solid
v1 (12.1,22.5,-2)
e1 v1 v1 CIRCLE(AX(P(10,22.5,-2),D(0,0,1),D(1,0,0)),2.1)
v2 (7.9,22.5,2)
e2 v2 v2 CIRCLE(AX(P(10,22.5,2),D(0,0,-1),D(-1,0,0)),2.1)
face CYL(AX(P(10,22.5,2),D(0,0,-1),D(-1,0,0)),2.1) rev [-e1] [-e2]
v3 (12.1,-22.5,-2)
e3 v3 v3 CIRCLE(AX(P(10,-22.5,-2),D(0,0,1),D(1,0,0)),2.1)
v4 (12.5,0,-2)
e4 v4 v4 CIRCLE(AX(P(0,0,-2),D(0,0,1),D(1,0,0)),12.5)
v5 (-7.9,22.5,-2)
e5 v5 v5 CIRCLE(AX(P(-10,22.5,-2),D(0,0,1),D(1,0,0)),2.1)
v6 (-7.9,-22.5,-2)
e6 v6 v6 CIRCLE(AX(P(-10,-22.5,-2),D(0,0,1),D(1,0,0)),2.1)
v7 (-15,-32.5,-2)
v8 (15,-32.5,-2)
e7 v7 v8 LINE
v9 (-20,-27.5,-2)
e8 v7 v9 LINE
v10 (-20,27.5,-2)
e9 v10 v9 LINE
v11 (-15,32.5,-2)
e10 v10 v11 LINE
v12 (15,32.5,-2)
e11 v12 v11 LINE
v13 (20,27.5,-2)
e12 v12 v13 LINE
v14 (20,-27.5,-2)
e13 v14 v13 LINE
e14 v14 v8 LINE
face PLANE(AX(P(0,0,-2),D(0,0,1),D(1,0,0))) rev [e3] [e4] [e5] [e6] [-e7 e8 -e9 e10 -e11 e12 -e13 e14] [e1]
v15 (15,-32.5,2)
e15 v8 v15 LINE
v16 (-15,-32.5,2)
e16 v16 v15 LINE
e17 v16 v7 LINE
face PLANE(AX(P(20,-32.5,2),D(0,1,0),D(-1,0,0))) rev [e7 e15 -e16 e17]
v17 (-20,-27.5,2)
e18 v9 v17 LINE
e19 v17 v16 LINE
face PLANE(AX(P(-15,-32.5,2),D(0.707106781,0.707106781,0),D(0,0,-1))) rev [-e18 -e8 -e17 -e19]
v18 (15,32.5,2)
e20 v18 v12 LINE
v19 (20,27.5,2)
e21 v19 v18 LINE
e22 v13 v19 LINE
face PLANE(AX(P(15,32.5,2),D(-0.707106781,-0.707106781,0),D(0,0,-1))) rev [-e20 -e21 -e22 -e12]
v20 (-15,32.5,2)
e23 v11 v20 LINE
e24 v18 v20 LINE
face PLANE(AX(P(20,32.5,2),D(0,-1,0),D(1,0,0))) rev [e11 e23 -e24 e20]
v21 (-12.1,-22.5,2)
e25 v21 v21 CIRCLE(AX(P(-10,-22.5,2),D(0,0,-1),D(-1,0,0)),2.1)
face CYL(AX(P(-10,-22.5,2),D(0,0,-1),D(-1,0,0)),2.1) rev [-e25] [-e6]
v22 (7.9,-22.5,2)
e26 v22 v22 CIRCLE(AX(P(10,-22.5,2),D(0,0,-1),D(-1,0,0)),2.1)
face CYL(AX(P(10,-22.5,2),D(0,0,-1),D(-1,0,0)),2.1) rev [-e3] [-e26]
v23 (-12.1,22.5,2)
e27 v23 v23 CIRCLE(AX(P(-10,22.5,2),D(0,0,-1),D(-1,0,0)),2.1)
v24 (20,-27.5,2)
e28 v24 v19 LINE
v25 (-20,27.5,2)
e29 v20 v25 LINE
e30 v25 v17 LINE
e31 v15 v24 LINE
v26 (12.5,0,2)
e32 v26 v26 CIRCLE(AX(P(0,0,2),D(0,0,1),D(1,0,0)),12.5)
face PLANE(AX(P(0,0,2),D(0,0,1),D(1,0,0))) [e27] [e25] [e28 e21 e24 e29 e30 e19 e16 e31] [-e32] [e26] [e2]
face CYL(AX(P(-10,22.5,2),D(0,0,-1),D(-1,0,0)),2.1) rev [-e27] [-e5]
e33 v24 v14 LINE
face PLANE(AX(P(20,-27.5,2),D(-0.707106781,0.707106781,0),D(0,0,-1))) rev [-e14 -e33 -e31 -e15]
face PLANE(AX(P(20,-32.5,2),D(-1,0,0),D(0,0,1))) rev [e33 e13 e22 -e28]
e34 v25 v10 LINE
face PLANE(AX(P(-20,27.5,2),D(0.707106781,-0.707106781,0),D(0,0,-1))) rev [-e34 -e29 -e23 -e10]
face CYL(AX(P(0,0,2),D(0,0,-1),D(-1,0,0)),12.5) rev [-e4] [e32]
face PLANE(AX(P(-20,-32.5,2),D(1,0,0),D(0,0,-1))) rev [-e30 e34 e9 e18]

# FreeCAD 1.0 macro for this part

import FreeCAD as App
import Part
import Sketcher
from FreeCAD import Vector
Q = App.Units.Quantity


def edges_at(feature, points):
    """Names of the edges that pass closest to the given points."""
    edges = feature.Shape.Edges
    near = lambda p: min(range(len(edges)), key=lambda i: edges[i].distToShape(Part.Vertex(*p))[0])
    return sorted({f"Edge{near(p) + 1}" for p in points})

doc = App.newDocument("Part")
body = doc.addObject("PartDesign::Body", "Body")

# Sketch on XY plane
sketch1 = body.newObject("Sketcher::SketchObject", "Sketch")
sketch1.AttachmentSupport = (doc.getObject("XY_Plane"), [""])
sketch1.MapMode = "FlatFace"
sketch1.addGeometry([
    Part.LineSegment(Vector(-20, 32, 0), Vector(-20, -32, 0)),  # 0
    Part.LineSegment(Vector(-20, -32, 0), Vector(20, -32, 0)),  # 1
    Part.LineSegment(Vector(20, -32, 0), Vector(20, 32, 0)),  # 2
    Part.LineSegment(Vector(20, 32, 0), Vector(-20, 32, 0)),  # 3
    Part.Circle(Vector(0, 0, 0), Vector(0, 0, 1), 12),  # 4
], False)
sketch1.addConstraint([
    Sketcher.Constraint("Coincident", 0, 2, 1, 1),
    Sketcher.Constraint("Coincident", 1, 2, 2, 1),
    Sketcher.Constraint("Coincident", 2, 2, 3, 1),
    Sketcher.Constraint("Coincident", 3, 2, 0, 1),
    Sketcher.Constraint("Vertical", 0),
    Sketcher.Constraint("Horizontal", 1),
    Sketcher.Constraint("Vertical", 2),
    Sketcher.Constraint("Horizontal", 3),
    Sketcher.Constraint("Coincident", 4, 3, -1, 1),
    Sketcher.Constraint("Symmetric", 0, 2, 2, 2, -1, 1),
    Sketcher.Constraint("Diameter", 4, Q("25 mm")),
    Sketcher.Constraint("DistanceX", 1, 1, 1, 2, Q("40 mm")),
    Sketcher.Constraint("DistanceY", 0, 2, 0, 1, Q("65 mm")),
])
pad1 = body.newObject("PartDesign::Pad", "Pad")
pad1.Profile = sketch1
pad1.Length = 4
pad1.Midplane = True

# Sketch on XY plane
sketch2 = body.newObject("Sketcher::SketchObject", "Sketch001")
sketch2.AttachmentSupport = (doc.getObject("XY_Plane"), [""])
sketch2.MapMode = "FlatFace"
sketch2.AttachmentOffset = App.Placement(Vector(0, 0, -2), App.Rotation())
sketch2.addGeometry([
    Part.Circle(Vector(10, 22.5, 0), Vector(0, 0, 1), 2.1),
    Part.Circle(Vector(-10, 22.5, 0), Vector(0, 0, 1), 2.1),
    Part.Circle(Vector(-10, -22.5, 0), Vector(0, 0, 1), 2.1),
    Part.Circle(Vector(10, -22.5, 0), Vector(0, 0, 1), 2.1),
], False)
sketch2.addConstraint([
    Sketcher.Constraint("Equal", 0, 1),
    Sketcher.Constraint("Equal", 1, 2),
    Sketcher.Constraint("Equal", 2, 3),
    Sketcher.Constraint("Symmetric", 0, 3, 2, 3, -1, 1),
    Sketcher.Constraint("Symmetric", 1, 3, 3, 3, -1, 1),
    Sketcher.Constraint("Symmetric", 0, 3, 1, 3, -2),
    Sketcher.Constraint("Diameter", 0, Q("4.2 mm")),
    Sketcher.Constraint("DistanceX", -1, 1, 0, 3, Q("10 mm")),
    Sketcher.Constraint("DistanceY", 2, 3, 1, 3, Q("45 mm")),
])
pocket1 = body.newObject("PartDesign::Pocket", "Pocket")
pocket1.Profile = sketch2
pocket1.Type = "ThroughAll"
pocket1.Midplane = True
doc.recompute()

chamfer = body.newObject("PartDesign::Chamfer", "Chamfer")
chamfer.Base = (pocket1, edges_at(pocket1, [
    (-20, 32.5, 0),
    (20, 32.5, 0),
    (20, -32.5, 0),
    (-20, -32.5, 0),
]))
chamfer.Size = 5

doc.recompute()
